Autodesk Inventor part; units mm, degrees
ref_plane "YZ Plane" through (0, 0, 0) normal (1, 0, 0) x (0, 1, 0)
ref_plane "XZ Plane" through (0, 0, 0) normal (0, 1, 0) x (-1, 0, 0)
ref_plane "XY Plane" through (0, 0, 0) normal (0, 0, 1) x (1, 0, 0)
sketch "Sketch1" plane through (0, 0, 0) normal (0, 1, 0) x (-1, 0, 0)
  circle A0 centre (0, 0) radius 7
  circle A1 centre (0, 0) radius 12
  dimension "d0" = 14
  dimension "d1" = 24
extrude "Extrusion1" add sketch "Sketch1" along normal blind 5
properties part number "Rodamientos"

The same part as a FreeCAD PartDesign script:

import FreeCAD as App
import Part
import Sketcher

doc = App.newDocument("Part")
body = doc.addObject("PartDesign::Body", "Body")

# Sketch on XZ plane
sketch1 = body.newObject("Sketcher::SketchObject", "Sketch")
sketch1.AttachmentSupport = (doc.getObject("XZ_Plane"), [""])
sketch1.MapMode = "FlatFace"
sketch1.addGeometry(Part.Circle(App.Vector(0, 0, 0), App.Vector(0, 0, 1), 12), False)
sketch1.addGeometry(Part.Circle(App.Vector(0, 0, 0), App.Vector(0, 0, 1), 7), False)
sketch1.addConstraint(Sketcher.Constraint("Coincident", 0, 3, -1, 1))
sketch1.addConstraint(Sketcher.Constraint("Coincident", 1, 3, -1, 1))
sketch1.addConstraint(Sketcher.Constraint("Diameter", 0, 24.0))
sketch1.addConstraint(Sketcher.Constraint("Diameter", 1, 14.0))
pad1 = body.newObject("PartDesign::Pad", "Pad")
pad1.Profile = sketch1
pad1.Length = 5
pad1.Reversed = True

doc.recompute()
